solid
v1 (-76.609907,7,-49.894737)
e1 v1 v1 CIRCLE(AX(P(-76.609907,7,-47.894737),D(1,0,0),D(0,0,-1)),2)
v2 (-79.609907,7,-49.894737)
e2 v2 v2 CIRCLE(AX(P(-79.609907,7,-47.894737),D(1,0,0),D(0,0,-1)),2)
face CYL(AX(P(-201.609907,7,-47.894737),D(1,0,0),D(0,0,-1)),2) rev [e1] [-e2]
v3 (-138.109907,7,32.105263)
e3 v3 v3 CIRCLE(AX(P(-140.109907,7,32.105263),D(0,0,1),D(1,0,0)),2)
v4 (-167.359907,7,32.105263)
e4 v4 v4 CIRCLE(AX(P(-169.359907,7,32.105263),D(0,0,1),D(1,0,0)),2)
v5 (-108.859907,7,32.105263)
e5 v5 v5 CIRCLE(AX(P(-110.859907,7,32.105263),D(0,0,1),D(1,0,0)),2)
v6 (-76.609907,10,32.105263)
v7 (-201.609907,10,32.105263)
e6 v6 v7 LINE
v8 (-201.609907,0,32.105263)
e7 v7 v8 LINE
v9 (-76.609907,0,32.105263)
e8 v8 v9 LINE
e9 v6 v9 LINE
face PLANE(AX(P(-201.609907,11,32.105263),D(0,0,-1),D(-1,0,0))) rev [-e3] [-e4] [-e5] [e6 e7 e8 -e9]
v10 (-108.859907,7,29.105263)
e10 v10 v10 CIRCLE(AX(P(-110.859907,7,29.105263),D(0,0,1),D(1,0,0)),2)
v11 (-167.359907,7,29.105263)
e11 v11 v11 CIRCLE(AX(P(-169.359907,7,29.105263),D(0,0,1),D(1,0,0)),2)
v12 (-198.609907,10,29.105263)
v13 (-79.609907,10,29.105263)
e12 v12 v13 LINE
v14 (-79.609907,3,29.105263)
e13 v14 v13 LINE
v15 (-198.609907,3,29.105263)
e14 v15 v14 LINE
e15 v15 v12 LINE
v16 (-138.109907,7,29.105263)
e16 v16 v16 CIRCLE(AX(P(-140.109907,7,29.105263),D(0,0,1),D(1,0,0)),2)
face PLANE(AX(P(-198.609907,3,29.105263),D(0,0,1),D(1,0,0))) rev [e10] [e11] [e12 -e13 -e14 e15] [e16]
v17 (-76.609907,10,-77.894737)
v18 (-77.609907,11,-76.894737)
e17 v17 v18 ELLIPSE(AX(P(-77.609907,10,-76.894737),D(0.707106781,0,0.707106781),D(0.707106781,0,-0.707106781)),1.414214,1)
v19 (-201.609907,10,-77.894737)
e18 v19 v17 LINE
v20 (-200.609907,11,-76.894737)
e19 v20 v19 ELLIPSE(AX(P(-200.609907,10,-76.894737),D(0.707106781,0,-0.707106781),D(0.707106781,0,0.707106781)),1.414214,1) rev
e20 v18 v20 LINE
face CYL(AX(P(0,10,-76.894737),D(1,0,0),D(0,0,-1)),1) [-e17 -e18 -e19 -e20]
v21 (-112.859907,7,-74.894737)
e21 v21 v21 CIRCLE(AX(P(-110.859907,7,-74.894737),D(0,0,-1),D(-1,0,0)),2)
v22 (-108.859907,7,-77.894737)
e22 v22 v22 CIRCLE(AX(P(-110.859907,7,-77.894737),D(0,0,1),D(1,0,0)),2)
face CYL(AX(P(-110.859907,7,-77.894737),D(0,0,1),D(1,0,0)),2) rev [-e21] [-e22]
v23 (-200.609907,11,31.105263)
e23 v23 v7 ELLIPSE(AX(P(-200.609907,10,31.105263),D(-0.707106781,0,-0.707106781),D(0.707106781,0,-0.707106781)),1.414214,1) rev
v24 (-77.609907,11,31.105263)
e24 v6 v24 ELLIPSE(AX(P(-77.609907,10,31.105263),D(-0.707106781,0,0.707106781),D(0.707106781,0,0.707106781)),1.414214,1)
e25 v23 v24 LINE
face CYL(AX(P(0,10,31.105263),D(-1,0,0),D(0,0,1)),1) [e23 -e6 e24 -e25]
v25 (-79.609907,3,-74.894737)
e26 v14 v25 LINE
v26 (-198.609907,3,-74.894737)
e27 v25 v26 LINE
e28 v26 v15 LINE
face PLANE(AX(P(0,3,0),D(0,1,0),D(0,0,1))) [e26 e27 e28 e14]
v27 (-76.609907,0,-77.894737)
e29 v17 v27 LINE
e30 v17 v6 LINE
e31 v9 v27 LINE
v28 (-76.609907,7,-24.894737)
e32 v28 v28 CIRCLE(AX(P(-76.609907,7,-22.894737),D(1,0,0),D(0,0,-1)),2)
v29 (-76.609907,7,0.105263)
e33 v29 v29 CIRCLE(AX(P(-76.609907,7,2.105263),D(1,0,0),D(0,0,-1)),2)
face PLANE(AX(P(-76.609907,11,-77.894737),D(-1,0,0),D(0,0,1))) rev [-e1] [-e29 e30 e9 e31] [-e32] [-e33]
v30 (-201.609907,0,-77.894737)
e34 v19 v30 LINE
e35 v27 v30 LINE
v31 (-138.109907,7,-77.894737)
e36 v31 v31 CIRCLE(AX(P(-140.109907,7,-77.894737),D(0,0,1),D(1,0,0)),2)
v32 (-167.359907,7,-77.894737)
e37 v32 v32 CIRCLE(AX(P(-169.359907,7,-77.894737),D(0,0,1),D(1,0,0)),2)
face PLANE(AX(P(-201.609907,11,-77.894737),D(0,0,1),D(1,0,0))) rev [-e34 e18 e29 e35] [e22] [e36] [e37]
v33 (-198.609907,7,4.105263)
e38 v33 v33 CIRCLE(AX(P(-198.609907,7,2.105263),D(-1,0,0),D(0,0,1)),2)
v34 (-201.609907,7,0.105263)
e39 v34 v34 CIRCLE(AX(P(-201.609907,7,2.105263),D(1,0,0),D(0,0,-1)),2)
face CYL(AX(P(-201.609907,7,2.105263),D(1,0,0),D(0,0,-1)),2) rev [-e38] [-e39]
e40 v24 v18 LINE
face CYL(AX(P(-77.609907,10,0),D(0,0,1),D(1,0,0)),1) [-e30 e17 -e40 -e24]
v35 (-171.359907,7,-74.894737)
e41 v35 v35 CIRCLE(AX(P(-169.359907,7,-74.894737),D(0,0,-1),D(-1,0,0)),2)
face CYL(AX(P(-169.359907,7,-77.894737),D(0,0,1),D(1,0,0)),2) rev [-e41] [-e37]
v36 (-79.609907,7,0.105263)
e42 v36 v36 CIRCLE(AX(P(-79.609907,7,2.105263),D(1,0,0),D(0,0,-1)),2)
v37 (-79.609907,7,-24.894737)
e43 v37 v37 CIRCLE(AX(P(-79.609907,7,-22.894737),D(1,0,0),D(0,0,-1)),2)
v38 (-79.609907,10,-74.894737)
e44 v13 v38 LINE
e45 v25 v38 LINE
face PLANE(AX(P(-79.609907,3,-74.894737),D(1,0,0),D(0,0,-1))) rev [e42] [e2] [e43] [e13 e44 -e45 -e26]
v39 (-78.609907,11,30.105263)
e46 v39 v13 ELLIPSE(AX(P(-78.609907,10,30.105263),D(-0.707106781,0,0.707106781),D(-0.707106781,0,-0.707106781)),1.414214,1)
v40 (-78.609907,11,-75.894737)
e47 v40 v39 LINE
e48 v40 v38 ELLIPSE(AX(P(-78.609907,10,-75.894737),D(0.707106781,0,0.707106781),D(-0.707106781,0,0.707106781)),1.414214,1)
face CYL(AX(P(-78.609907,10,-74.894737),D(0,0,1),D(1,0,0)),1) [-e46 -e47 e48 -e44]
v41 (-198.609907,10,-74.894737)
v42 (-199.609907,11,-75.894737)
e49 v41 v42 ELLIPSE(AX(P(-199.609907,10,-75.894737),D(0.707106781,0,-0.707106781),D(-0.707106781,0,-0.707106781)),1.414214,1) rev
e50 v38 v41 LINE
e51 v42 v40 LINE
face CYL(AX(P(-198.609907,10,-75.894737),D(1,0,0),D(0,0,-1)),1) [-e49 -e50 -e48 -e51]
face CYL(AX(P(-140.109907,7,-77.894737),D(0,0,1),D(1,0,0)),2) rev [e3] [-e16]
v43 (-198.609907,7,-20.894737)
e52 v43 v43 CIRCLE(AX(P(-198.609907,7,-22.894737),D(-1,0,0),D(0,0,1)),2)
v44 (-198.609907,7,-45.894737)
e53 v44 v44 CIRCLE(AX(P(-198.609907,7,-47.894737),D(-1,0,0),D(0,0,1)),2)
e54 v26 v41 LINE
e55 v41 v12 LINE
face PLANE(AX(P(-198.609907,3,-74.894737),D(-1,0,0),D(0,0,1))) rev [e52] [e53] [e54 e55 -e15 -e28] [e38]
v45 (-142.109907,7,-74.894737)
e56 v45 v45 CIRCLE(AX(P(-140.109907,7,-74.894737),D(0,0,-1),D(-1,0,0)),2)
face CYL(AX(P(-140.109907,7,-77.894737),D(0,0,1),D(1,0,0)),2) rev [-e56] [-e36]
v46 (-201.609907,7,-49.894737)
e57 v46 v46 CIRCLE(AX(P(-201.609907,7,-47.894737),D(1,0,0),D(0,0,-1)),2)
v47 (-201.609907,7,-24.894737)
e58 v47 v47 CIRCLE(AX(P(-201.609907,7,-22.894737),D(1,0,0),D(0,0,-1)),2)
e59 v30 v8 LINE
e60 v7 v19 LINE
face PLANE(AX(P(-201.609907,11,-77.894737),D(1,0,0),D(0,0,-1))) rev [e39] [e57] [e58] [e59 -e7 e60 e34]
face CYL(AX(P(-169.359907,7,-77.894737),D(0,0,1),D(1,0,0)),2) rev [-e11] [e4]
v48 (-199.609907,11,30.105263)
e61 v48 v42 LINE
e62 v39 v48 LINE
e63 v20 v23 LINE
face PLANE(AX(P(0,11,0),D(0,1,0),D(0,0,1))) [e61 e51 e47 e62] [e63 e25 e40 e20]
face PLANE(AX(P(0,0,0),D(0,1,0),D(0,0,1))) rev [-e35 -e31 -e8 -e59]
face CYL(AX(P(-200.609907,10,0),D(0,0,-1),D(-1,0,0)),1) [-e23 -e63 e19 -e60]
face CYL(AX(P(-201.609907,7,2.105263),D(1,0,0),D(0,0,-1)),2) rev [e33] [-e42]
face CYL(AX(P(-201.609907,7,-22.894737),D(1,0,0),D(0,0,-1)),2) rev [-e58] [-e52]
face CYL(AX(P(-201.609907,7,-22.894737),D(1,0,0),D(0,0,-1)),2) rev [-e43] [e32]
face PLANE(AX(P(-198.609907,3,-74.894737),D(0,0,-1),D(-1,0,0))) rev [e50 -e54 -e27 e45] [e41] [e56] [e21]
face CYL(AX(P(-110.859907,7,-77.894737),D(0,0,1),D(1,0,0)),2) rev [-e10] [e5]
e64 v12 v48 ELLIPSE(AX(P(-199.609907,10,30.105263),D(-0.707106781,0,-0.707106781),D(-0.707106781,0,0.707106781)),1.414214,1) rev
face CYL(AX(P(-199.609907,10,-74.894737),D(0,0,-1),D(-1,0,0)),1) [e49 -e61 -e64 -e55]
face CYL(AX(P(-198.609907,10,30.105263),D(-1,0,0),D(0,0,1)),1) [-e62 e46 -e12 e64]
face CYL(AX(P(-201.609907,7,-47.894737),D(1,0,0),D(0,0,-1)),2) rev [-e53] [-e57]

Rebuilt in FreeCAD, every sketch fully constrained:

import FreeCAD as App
import Part
import Sketcher
from FreeCAD import Vector


def edges_at(feature, points):
    """Names of the edges that pass closest to the given points."""
    edges = feature.Shape.Edges
    near = lambda p: min(range(len(edges)), key=lambda i: edges[i].distToShape(Part.Vertex(*p))[0])
    return sorted({f"Edge{near(p) + 1}" for p in points})

doc = App.newDocument("Part")
body = doc.addObject("PartDesign::Body", "Body")

# Sketch on XZ plane
sketch1 = doc.addObject("Sketcher::SketchObject", "Sketch")
body.addObject(sketch1)
sketch1.AttachmentSupport = (doc.XZ_Plane, [""])
sketch1.MapMode = "FlatFace"
sketch1.addGeometry([
    Part.LineSegment(Vector(-202, -78, 0), Vector(-202, 32, 0)),
    Part.LineSegment(Vector(-202, 32, 0), Vector(-77, 32, 0)),
    Part.LineSegment(Vector(-77, 32, 0), Vector(-77, -78, 0)),
    Part.LineSegment(Vector(-77, -78, 0), Vector(-202, -78, 0)),
], False)
sketch1.addConstraint([
    Sketcher.Constraint("Coincident", 0, 2, 1, 1),
    Sketcher.Constraint("Coincident", 1, 2, 2, 1),
    Sketcher.Constraint("Coincident", 2, 2, 3, 1),
    Sketcher.Constraint("Coincident", 3, 2, 0, 1),
    Sketcher.Constraint("Vertical", 0),
    Sketcher.Constraint("Horizontal", 1),
    Sketcher.Constraint("Vertical", 2),
    Sketcher.Constraint("Horizontal", 3),
    Sketcher.Constraint("DistanceX", 1, 1, 1, 2, 125.0),
    Sketcher.Constraint("DistanceY", 0, 1, 0, 2, 110.0),
    Sketcher.Constraint("DistanceX", 0, 2, -1, 1, 201.609907),
    Sketcher.Constraint("DistanceY", -1, 1, 0, 2, 32.105263),
])
pad1 = doc.addObject("PartDesign::Pad", "Pad")
body.addObject(pad1)
pad1.Profile = sketch1
pad1.Length = 11
pad1.Reversed = True

# Sketch on XZ plane
sketch2 = doc.addObject("Sketcher::SketchObject", "Sketch001")
body.addObject(sketch2)
sketch2.AttachmentSupport = (doc.XZ_Plane, [""])
sketch2.MapMode = "FlatFace"
sketch2.AttachmentOffset = App.Placement(Vector(0, 0, -11), App.Rotation())
sketch2.addGeometry([
    Part.LineSegment(Vector(-199, -75, 0), Vector(-199, 29, 0)),
    Part.LineSegment(Vector(-199, 29, 0), Vector(-80, 29, 0)),
    Part.LineSegment(Vector(-80, 29, 0), Vector(-80, -75, 0)),
    Part.LineSegment(Vector(-80, -75, 0), Vector(-199, -75, 0)),
], False)
sketch2.addConstraint([
    Sketcher.Constraint("Coincident", 0, 2, 1, 1),
    Sketcher.Constraint("Coincident", 1, 2, 2, 1),
    Sketcher.Constraint("Coincident", 2, 2, 3, 1),
    Sketcher.Constraint("Coincident", 3, 2, 0, 1),
    Sketcher.Constraint("Vertical", 0),
    Sketcher.Constraint("Horizontal", 1),
    Sketcher.Constraint("Vertical", 2),
    Sketcher.Constraint("Horizontal", 3),
    Sketcher.Constraint("DistanceX", 1, 1, 1, 2, 119.0),
    Sketcher.Constraint("DistanceY", 0, 1, 0, 2, 104.0),
    Sketcher.Constraint("DistanceX", 0, 2, -1, 1, 198.609907),
    Sketcher.Constraint("DistanceY", -1, 1, 0, 2, 29.105263),
])
pocket1 = doc.addObject("PartDesign::Pocket", "Pocket")
body.addObject(pocket1)
pocket1.Profile = sketch2
pocket1.Length = 8
pocket1.Reversed = True

# Sketch on YZ plane
sketch3 = doc.addObject("Sketcher::SketchObject", "Sketch002")
body.addObject(sketch3)
sketch3.AttachmentSupport = (doc.YZ_Plane, [""])
sketch3.MapMode = "FlatFace"
sketch3.AttachmentOffset = App.Placement(Vector(0, 0, -198.609907), App.Rotation())
sketch3.addGeometry([
    Part.Circle(Vector(7, 2.1, 0), Vector(0, 0, 1), 2),
    Part.Circle(Vector(7, -22.9, 0), Vector(0, 0, 1), 2),
    Part.Circle(Vector(7, -47.9, 0), Vector(0, 0, 1), 2),
], False)
sketch3.addConstraint([
    Sketcher.Constraint("Equal", 0, 1),
    Sketcher.Constraint("Equal", 1, 2),
    Sketcher.Constraint("Vertical", 0, 3, 1, 3),
    Sketcher.Constraint("Vertical", 1, 3, 2, 3),
    Sketcher.Constraint("Diameter", 0, 4.0),
    Sketcher.Constraint("DistanceX", -1, 1, 0, 3, 7.0),
    Sketcher.Constraint("DistanceY", 1, 3, 0, 3, 25.0),
    Sketcher.Constraint("DistanceY", 2, 3, 1, 3, 25.0),
    Sketcher.Constraint("DistanceY", -1, 1, 0, 3, 2.105263),
])
pocket2 = doc.addObject("PartDesign::Pocket", "Pocket001")
body.addObject(pocket2)
pocket2.Profile = sketch3
pocket2.Type = "ThroughAll"
pocket2.Midplane = True

# Sketch on XY plane
sketch4 = doc.addObject("Sketcher::SketchObject", "Sketch003")
body.addObject(sketch4)
sketch4.AttachmentSupport = (doc.XY_Plane, [""])
sketch4.MapMode = "FlatFace"
sketch4.AttachmentOffset = App.Placement(Vector(0, 0, -74.894737), App.Rotation())
sketch4.addGeometry([
    Part.Circle(Vector(-169.4, 7, 0), Vector(0, 0, 1), 2),
    Part.Circle(Vector(-140.1, 7, 0), Vector(0, 0, 1), 2),
    Part.Circle(Vector(-110.9, 7, 0), Vector(0, 0, 1), 2),
], False)
sketch4.addConstraint([
    Sketcher.Constraint("Equal", 0, 1),
    Sketcher.Constraint("Equal", 1, 2),
    Sketcher.Constraint("Horizontal", 0, 3, 1, 3),
    Sketcher.Constraint("Horizontal", 1, 3, 2, 3),
    Sketcher.Constraint("Diameter", 0, 4.0),
    Sketcher.Constraint("DistanceY", -1, 1, 0, 3, 7.0),
    Sketcher.Constraint("DistanceX", 0, 3, 2, 3, 58.5),
    Sketcher.Constraint("DistanceX", 0, 3, 1, 3, 29.25),
    Sketcher.Constraint("DistanceX", 0, 3, -1, 1, 169.359907),
])
pocket3 = doc.addObject("PartDesign::Pocket", "Pocket002")
body.addObject(pocket3)
pocket3.Profile = sketch4
pocket3.Type = "ThroughAll"
pocket3.Midplane = True
doc.recompute()

fillet = doc.addObject("PartDesign::Fillet", "Fillet")
body.addObject(fillet)
fillet.Base = (pocket3, edges_at(pocket3, [
    (-76.61, 11, -22.895),
    (-139.11, 11, -77.895),
    (-198.61, 11, -22.895),
    (-139.11, 11, 29.105),
    (-79.61, 11, -22.895),
    (-139.11, 11, -74.895),
    (-201.61, 11, -22.895),
    (-139.11, 11, 32.105),
]))
fillet.Radius = 1

doc.recompute()
